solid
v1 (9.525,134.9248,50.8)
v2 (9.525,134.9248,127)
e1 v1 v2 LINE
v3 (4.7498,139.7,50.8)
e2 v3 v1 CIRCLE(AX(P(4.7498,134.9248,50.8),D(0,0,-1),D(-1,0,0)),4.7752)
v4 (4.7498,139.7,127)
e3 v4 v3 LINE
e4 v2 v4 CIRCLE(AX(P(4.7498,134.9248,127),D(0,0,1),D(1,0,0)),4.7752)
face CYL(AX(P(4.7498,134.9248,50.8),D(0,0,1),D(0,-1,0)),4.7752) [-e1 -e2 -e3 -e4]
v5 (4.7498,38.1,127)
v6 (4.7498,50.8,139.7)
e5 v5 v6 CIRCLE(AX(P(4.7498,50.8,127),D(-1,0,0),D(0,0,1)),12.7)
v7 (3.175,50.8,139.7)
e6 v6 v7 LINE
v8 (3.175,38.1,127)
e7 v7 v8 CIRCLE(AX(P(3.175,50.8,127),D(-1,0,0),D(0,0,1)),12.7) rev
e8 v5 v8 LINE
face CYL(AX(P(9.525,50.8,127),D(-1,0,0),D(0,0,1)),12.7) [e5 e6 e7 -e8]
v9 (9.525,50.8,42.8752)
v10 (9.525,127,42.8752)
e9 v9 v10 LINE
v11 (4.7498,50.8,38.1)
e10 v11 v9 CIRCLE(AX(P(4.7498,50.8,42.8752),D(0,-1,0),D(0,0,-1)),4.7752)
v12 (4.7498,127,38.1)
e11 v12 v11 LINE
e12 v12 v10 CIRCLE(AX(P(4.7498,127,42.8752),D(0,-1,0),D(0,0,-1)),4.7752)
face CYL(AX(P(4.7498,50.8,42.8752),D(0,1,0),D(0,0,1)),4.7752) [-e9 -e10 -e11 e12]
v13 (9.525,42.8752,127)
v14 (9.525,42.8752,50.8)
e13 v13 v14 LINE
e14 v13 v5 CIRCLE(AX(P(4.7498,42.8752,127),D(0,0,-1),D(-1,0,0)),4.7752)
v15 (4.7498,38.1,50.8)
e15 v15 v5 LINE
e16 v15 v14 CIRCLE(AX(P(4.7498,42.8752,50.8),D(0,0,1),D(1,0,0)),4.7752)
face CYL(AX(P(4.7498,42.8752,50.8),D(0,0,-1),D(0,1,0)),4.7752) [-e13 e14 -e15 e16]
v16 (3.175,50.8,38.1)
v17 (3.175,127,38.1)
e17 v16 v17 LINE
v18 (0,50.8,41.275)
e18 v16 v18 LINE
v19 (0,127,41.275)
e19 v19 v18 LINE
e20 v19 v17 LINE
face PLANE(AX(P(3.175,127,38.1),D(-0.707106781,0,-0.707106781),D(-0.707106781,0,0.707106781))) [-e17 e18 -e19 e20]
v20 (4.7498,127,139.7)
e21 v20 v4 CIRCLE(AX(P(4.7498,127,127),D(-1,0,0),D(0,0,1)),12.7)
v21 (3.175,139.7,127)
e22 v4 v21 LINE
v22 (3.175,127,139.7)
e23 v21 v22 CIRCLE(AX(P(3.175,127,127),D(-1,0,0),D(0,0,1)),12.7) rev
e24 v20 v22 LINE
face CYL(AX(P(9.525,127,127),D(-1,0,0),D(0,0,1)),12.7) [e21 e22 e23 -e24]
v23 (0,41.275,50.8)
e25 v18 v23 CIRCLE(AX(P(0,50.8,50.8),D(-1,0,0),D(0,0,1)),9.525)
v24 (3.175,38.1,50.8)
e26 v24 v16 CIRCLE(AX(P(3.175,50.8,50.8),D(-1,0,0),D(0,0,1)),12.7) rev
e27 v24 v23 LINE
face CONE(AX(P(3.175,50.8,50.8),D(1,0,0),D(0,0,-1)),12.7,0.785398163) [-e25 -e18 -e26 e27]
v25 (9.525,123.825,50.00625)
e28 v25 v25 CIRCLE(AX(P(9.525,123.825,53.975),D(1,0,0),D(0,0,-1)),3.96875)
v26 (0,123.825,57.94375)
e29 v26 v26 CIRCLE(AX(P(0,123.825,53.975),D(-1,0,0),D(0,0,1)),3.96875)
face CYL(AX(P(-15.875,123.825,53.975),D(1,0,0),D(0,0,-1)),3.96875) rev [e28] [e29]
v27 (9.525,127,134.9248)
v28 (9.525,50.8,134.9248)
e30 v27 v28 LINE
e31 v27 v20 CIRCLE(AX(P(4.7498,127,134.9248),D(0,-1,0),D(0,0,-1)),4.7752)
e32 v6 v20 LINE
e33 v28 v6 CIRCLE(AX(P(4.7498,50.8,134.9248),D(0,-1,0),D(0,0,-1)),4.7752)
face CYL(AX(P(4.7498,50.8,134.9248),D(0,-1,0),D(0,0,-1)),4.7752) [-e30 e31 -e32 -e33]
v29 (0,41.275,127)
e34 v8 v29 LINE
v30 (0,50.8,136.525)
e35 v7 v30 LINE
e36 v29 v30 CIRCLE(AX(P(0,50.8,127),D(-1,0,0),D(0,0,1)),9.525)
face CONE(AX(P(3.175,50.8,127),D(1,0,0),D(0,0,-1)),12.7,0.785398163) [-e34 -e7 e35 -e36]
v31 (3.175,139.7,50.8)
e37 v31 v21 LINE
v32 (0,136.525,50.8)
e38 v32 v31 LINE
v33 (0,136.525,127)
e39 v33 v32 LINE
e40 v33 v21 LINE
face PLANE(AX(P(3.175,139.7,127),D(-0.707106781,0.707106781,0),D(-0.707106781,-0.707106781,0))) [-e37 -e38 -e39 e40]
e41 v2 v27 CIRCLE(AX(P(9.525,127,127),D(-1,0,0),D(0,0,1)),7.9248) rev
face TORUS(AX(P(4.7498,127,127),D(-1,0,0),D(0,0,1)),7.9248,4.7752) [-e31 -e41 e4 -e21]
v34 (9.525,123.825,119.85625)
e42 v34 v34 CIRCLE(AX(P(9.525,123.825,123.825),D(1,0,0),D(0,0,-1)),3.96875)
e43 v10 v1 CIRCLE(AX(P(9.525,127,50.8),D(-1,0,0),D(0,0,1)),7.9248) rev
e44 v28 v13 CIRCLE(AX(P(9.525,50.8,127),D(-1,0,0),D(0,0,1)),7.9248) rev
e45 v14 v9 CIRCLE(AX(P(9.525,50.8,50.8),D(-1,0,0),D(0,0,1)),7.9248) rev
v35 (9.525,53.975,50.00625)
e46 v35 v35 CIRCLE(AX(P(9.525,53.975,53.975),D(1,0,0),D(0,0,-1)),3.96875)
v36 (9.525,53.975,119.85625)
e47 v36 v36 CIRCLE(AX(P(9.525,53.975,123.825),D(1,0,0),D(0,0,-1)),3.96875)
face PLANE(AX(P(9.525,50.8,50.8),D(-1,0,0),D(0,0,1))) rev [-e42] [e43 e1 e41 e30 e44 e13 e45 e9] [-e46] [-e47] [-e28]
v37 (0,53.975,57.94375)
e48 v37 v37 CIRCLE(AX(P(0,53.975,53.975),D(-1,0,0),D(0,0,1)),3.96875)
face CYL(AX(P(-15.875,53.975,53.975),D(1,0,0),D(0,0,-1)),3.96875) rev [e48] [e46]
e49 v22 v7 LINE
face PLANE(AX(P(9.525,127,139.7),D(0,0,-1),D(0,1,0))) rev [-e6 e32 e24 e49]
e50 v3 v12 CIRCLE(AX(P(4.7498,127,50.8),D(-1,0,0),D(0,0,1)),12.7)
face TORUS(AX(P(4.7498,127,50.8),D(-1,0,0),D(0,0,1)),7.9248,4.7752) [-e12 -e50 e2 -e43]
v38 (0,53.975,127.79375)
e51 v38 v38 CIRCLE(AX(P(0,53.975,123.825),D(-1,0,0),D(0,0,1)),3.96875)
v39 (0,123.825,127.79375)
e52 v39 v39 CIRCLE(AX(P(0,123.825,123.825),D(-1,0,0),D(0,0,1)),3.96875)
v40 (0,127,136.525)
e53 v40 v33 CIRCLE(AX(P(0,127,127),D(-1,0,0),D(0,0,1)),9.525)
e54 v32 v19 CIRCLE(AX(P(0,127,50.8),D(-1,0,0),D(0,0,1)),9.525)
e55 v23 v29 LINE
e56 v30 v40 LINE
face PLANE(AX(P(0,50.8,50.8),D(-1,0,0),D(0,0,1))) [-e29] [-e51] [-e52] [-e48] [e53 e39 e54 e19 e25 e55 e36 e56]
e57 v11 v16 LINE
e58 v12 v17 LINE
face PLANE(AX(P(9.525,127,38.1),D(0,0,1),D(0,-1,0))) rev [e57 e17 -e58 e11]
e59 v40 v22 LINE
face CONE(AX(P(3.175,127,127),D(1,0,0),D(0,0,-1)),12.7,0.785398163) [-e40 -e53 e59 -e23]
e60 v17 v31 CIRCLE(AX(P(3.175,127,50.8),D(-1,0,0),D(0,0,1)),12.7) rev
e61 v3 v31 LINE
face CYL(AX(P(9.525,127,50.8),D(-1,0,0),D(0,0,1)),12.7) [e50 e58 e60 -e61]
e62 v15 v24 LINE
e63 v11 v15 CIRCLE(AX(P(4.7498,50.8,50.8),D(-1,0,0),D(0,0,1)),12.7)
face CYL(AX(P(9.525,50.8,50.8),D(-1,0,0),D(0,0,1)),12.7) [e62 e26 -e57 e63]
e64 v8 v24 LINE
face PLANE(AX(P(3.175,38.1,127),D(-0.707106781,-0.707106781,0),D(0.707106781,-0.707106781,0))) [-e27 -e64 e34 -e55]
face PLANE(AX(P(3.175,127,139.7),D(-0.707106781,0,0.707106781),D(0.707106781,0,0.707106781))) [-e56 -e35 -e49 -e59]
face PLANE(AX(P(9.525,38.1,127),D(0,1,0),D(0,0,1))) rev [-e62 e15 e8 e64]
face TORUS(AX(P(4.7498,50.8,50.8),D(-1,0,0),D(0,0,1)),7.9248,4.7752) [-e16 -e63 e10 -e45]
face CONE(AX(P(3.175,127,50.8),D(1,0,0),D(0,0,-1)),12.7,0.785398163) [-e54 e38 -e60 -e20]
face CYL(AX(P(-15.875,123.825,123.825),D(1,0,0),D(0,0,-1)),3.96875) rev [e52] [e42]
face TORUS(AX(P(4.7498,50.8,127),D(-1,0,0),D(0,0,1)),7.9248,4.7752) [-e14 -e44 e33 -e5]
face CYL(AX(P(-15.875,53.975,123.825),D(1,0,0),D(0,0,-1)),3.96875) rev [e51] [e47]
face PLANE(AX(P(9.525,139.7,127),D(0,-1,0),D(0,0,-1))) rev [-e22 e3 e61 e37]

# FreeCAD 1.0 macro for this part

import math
import FreeCAD as App
import Part
import Sketcher
from FreeCAD import Vector
Q = App.Units.Quantity


def edges_at(feature, points):
    """Names of the edges that pass closest to the given points."""
    edges = feature.Shape.Edges
    near = lambda p: min(range(len(edges)), key=lambda i: edges[i].distToShape(Part.Vertex(*p))[0])
    return sorted({f"Edge{near(p) + 1}" for p in points})

doc = App.newDocument("Part")
body = doc.addObject("PartDesign::Body", "Body")

# Sketch on YZ plane
sketch1 = doc.addObject("Sketcher::SketchObject", "Sketch")
body.addObject(sketch1)
sketch1.AttachmentSupport = (doc.YZ_Plane, [""])
sketch1.MapMode = "FlatFace"
sketch1.addGeometry(Part.LineSegment(Vector(139.7, 50.8, 0), Vector(139.7, 127, 0)), False)
sketch1.addGeometry(Part.ArcOfCircle(Part.Circle(Vector(127, 127, 0), Vector(0, 0, 1), 12.7), math.radians(0), math.radians(90)), False)
sketch1.addGeometry(Part.LineSegment(Vector(127, 139.7, 0), Vector(50.8, 139.7, 0)), False)
sketch1.addGeometry(Part.ArcOfCircle(Part.Circle(Vector(50.8, 127, 0), Vector(0, 0, 1), 12.7), math.radians(90), math.radians(180)), False)
sketch1.addGeometry(Part.LineSegment(Vector(38.1, 127, 0), Vector(38.1, 50.8, 0)), False)
sketch1.addGeometry(Part.ArcOfCircle(Part.Circle(Vector(50.8, 50.8, 0), Vector(0, 0, 1), 12.7), math.radians(180), math.radians(270)), False)
sketch1.addGeometry(Part.LineSegment(Vector(50.8, 38.1, 0), Vector(127, 38.1, 0)), False)
sketch1.addGeometry(Part.ArcOfCircle(Part.Circle(Vector(127, 50.8, 0), Vector(0, 0, 1), 12.7), math.radians(-90), math.radians(0)), False)
sketch1.addConstraint(Sketcher.Constraint("Tangent", 0, 2, 1, 1))
sketch1.addConstraint(Sketcher.Constraint("Tangent", 1, 2, 2, 1))
sketch1.addConstraint(Sketcher.Constraint("Tangent", 2, 2, 3, 1))
sketch1.addConstraint(Sketcher.Constraint("Tangent", 3, 2, 4, 1))
sketch1.addConstraint(Sketcher.Constraint("Tangent", 4, 2, 5, 1))
sketch1.addConstraint(Sketcher.Constraint("Tangent", 5, 2, 6, 1))
sketch1.addConstraint(Sketcher.Constraint("Tangent", 6, 2, 7, 1))
sketch1.addConstraint(Sketcher.Constraint("Tangent", 7, 2, 0, 1))
sketch1.addConstraint(Sketcher.Constraint("Vertical", 0))
sketch1.addConstraint(Sketcher.Constraint("Horizontal", 2))
sketch1.addConstraint(Sketcher.Constraint("Vertical", 4))
sketch1.addConstraint(Sketcher.Constraint("Horizontal", 6))
sketch1.addConstraint(Sketcher.Constraint("Equal", 1, 3))
sketch1.addConstraint(Sketcher.Constraint("Equal", 3, 5))
sketch1.addConstraint(Sketcher.Constraint("Equal", 5, 7))
sketch1.addConstraint(Sketcher.Constraint("Equal", 6, 0))
sketch1.addConstraint(Sketcher.Constraint("Radius", 1, Q("0.5 in")))
sketch1.addConstraint(Sketcher.Constraint("DistanceX", 2, 2, 2, 1, Q("3 in")))
sketch1.addConstraint(Sketcher.Constraint("DistanceX", -1, 1, 1, 3, Q("5 in")))
sketch1.addConstraint(Sketcher.Constraint("DistanceY", -1, 1, 1, 3, Q("5 in")))
pad1 = doc.addObject("PartDesign::Pad", "Pad")
body.addObject(pad1)
pad1.Profile = sketch1
pad1.Length = Q("0.375 in")
doc.recompute()

chamfer = doc.addObject("PartDesign::Chamfer", "Chamfer")
body.addObject(chamfer)
chamfer.Base = (pad1, edges_at(pad1, [
    (0, 38.1, 88.9),
    (0, 41.82, 135.98),
    (0, 88.9, 139.7),
    (0, 135.98, 135.98),
    (0, 139.7, 88.9),
    (0, 135.98, 41.82),
    (0, 88.9, 38.1),
    (0, 41.82, 41.82),
]))
chamfer.Size = Q("0.125 in")
doc.recompute()

fillet = doc.addObject("PartDesign::Fillet", "Fillet")
body.addObject(fillet)
fillet.Base = (chamfer, edges_at(chamfer, [
    (9.525, 135.98, 41.82),
    (9.525, 139.7, 88.9),
    (9.525, 135.98, 135.98),
    (9.525, 88.9, 139.7),
    (9.525, 41.82, 135.98),
    (9.525, 38.1, 88.9),
    (9.525, 41.82, 41.82),
    (9.525, 88.9, 38.1),
]))
fillet.Radius = Q("0.188 in")

# Sketch on YZ plane
sketch2 = doc.addObject("Sketcher::SketchObject", "Sketch001")
body.addObject(sketch2)
sketch2.AttachmentSupport = (doc.YZ_Plane, [""])
sketch2.MapMode = "FlatFace"
sketch2.AttachmentOffset = App.Placement(Vector(0, 0, 0.375 * 25.4), App.Rotation())
sketch2.addGeometry(Part.Circle(Vector(53.975, 53.975, 0), Vector(0, 0, 1), 3.96875), False)
sketch2.addGeometry(Part.Circle(Vector(123.825, 53.975, 0), Vector(0, 0, 1), 3.96875), False)
sketch2.addGeometry(Part.Circle(Vector(123.825, 123.825, 0), Vector(0, 0, 1), 3.96875), False)
sketch2.addGeometry(Part.Circle(Vector(53.975, 123.825, 0), Vector(0, 0, 1), 3.96875), False)
sketch2.addConstraint(Sketcher.Constraint("Equal", 0, 1))
sketch2.addConstraint(Sketcher.Constraint("Equal", 1, 2))
sketch2.addConstraint(Sketcher.Constraint("Equal", 2, 3))
sketch2.addConstraint(Sketcher.Constraint("Horizontal", 0, 3, 1, 3))
sketch2.addConstraint(Sketcher.Constraint("Horizontal", 2, 3, 3, 3))
sketch2.addConstraint(Sketcher.Constraint("Vertical", 1, 3, 2, 3))
sketch2.addConstraint(Sketcher.Constraint("Vertical", 0, 3, 3, 3))
sketch2.addConstraint(Sketcher.Constraint("Diameter", 0, Q("0.3125 in")))
sketch2.addConstraint(Sketcher.Constraint("DistanceX", 0, 3, 1, 3, Q("2.75 in")))
sketch2.addConstraint(Sketcher.Constraint("DistanceY", 1, 3, 2, 3, Q("2.75 in")))
sketch2.addConstraint(Sketcher.Constraint("DistanceX", -1, 1, 0, 3, Q("2.125 in")))
sketch2.addConstraint(Sketcher.Constraint("DistanceY", -1, 1, 0, 3, Q("2.125 in")))
pocket1 = doc.addObject("PartDesign::Pocket", "Pocket")
body.addObject(pocket1)
pocket1.Profile = sketch2
pocket1.Length = Q("1 in")

doc.recompute()
